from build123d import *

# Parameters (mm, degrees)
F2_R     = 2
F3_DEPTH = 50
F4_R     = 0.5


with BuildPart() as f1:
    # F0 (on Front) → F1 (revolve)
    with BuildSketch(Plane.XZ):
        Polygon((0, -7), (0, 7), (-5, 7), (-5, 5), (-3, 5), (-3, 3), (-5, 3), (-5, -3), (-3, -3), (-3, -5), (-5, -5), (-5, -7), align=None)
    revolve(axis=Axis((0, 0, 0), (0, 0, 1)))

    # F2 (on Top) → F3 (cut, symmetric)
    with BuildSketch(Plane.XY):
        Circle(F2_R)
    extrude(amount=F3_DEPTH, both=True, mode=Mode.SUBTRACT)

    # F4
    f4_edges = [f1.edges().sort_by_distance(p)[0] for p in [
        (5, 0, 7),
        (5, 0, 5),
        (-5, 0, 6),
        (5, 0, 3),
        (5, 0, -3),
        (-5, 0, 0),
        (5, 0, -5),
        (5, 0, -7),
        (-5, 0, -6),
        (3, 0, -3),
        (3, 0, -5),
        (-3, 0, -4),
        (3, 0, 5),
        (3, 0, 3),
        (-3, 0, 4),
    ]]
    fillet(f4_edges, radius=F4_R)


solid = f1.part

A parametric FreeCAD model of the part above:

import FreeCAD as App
import Part
import Sketcher
from FreeCAD import Vector


def edges_at(feature, points):
    """Names of the edges that pass closest to the given points."""
    edges = feature.Shape.Edges
    near = lambda p: min(range(len(edges)), key=lambda i: edges[i].distToShape(Part.Vertex(*p))[0])
    return sorted({f"Edge{near(p) + 1}" for p in points})


def add_polygon(sketch, points):
    """Adds a closed chain of lines whose ends are joined by coincident constraints."""
    first, n = sketch.GeometryCount, len(points)
    for a, b in zip(points, points[1:] + points[:1]):
        sketch.addGeometry(Part.LineSegment(App.Vector(*a, 0), App.Vector(*b, 0)), False)
    for i in range(n):
        sketch.addConstraint(Sketcher.Constraint("Coincident", first + i, 2, first + (i + 1) % n, 1))

doc = App.newDocument("Part")
body = doc.addObject("PartDesign::Body", "Body")

# Sketch on XZ plane
sketch1 = body.newObject("Sketcher::SketchObject", "Sketch")
sketch1.AttachmentSupport = (doc.getObject("XZ_Plane"), [""])
sketch1.MapMode = "FlatFace"
add_polygon(sketch1, [(0, -7), (0, 7), (-5, 7), (-5, 5), (-3, 5), (-3, 3), (-5, 3), (-5, -3), (-3, -3), (-3, -5), (-5, -5), (-5, -7)])  # lines 0-11
sketch1.addConstraint([
    Sketcher.Constraint("Vertical", 0),
    Sketcher.Constraint("Horizontal", 1),
    Sketcher.Constraint("Vertical", 2),
    Sketcher.Constraint("Horizontal", 3),
    Sketcher.Constraint("Vertical", 4),
    Sketcher.Constraint("Horizontal", 5),
    Sketcher.Constraint("Vertical", 6),
    Sketcher.Constraint("Horizontal", 7),
    Sketcher.Constraint("Vertical", 8),
    Sketcher.Constraint("Horizontal", 9),
    Sketcher.Constraint("Vertical", 10),
    Sketcher.Constraint("Horizontal", 11),
    Sketcher.Constraint("Symmetric", 0, 2, 11, 2, -1, 1),
    Sketcher.Constraint("Symmetric", 4, 2, 7, 2, -1),
    Sketcher.Constraint("Symmetric", 2, 2, 9, 2, -1),
    Sketcher.Constraint("Vertical", 2, 2, 5, 2),
    Sketcher.Constraint("Equal", 9, 2),
    Sketcher.Constraint("Equal", 2, 4),
    Sketcher.Constraint("DistanceX", 1, 2, 1, 1, 5.0),
    Sketcher.Constraint("DistanceX", 3, 1, 3, 2, 2.0),
    Sketcher.Constraint("DistanceY", 0, 1, 0, 2, 14.0),
])
revolution = body.newObject("PartDesign::Revolution", "Revolution")
revolution.Profile = sketch1
revolution.ReferenceAxis = (sketch1, ["V_Axis"])
revolution.Angle = 360

# Sketch on XY plane
sketch2 = body.newObject("Sketcher::SketchObject", "Sketch001")
sketch2.AttachmentSupport = (doc.getObject("XY_Plane"), [""])
sketch2.MapMode = "FlatFace"
sketch2.addGeometry(Part.Circle(Vector(0, 0, 0), Vector(0, 0, 1), 2), False)
sketch2.addConstraint([
    Sketcher.Constraint("Coincident", 0, 3, -1, 1),
    Sketcher.Constraint("Diameter", 0, 4.0),
])
pocket1 = body.newObject("PartDesign::Pocket", "Pocket")
pocket1.Profile = sketch2
pocket1.Length = 100
pocket1.Midplane = True
doc.recompute()

fillet = body.newObject("PartDesign::Fillet", "Fillet")
fillet.Base = (pocket1, edges_at(pocket1, [
    (5, 0, 7),
    (5, 0, 5),
    (-5, 0, 6),
    (5, 0, 3),
    (5, 0, -3),
    (-5, 0, 0),
    (5, 0, -5),
    (5, 0, -7),
    (-5, 0, -6),
    (3, 0, -3),
    (3, 0, -5),
    (-3, 0, -4),
    (3, 0, 5),
    (3, 0, 3),
    (-3, 0, 4),
]))
fillet.Radius = 0.5

doc.recompute()
